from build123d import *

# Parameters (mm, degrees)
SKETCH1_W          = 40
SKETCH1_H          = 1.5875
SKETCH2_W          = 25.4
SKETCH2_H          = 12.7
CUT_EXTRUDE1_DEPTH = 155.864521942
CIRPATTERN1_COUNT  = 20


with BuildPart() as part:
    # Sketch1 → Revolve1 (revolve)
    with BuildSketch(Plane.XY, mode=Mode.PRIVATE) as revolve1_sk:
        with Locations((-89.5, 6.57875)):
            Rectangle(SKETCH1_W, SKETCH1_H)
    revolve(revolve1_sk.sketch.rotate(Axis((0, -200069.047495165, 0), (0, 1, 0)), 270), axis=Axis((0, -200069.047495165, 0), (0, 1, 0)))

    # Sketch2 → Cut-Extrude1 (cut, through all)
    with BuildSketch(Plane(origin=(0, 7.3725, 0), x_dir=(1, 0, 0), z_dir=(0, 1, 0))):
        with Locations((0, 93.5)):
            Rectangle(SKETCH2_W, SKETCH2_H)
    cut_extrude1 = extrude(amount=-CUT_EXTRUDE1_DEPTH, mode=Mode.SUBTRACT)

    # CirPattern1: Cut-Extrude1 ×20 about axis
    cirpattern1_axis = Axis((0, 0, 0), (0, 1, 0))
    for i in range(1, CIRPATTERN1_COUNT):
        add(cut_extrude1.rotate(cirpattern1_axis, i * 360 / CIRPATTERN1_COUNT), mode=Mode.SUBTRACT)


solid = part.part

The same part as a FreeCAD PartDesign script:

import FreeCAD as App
import Part
import Sketcher

V = App.Vector
Q = App.Units.Quantity


def add_polygon(sketch, points):
    """Adds a closed chain of lines whose ends are joined by coincident constraints."""
    first, n = sketch.GeometryCount, len(points)
    for a, b in zip(points, points[1:] + points[:1]):
        sketch.addGeometry(Part.LineSegment(App.Vector(*a, 0), App.Vector(*b, 0)), False)
    for i in range(n):
        sketch.addConstraint(Sketcher.Constraint("Coincident", first + i, 2, first + (i + 1) % n, 1))

doc = App.newDocument("Part")
params = doc.addObject("Spreadsheet::Sheet", "Params")
for row, (alias, value) in enumerate([
    ("sketch1_height", "0.0625 in"),
    ("revolution_angle", "360 deg"),
    ("sketch2_width", "1 in"),
    ("sketch2_height", "0.5 in"),
], start=1):
    params.set(f"A{row}", alias)
    params.set(f"B{row}", "=" + value)
    params.setAlias(f"B{row}", alias)

body = doc.addObject("PartDesign::Body", "Body")

# Sketch on XY plane
sketch1 = body.newObject("Sketcher::SketchObject", "Sketch")
sketch1.AttachmentSupport = (doc.getObject("XY_Plane"), [""])
sketch1.MapMode = "FlatFace"
add_polygon(sketch1, [(-109.5, 7.4), (-109.5, 5.8), (-69.5, 5.8), (-69.5, 7.4)])  # lines 0-3
sketch1.addConstraint(Sketcher.Constraint("Vertical", 0))
sketch1.addConstraint(Sketcher.Constraint("Horizontal", 1))
sketch1.addConstraint(Sketcher.Constraint("Vertical", 2))
sketch1.addConstraint(Sketcher.Constraint("Horizontal", 3))
sketch1.addConstraint(Sketcher.Constraint("DistanceY", 0, 2, 0, 1, Q("0.0625 in")))
sketch1.addConstraint(Sketcher.Constraint("DistanceX", 1, 1, 1, 2, 40.0))
sketch1.addConstraint(Sketcher.Constraint("DistanceX", 0, 2, -1, 1, 109.5))
sketch1.addConstraint(Sketcher.Constraint("DistanceY", -1, 1, 0, 2, 5.785))
sketch1.setExpression("Constraints[8]", "Params.sketch1_height")
revolution = body.newObject("PartDesign::Revolution", "Revolution")
revolution.Profile = sketch1
revolution.ReferenceAxis = (sketch1, ["V_Axis"])
revolution.setExpression("Angle", "Params.revolution_angle")

# Sketch on XZ plane
sketch2 = body.newObject("Sketcher::SketchObject", "Sketch001")
sketch2.AttachmentSupport = (doc.getObject("XZ_Plane"), [""])
sketch2.MapMode = "FlatFace"
sketch2.AttachmentOffset = App.Placement(V(0, 0, -7.3725), App.Rotation())
add_polygon(sketch2, [(-13, -100), (-13, -87), (13, -87), (13, -100)])  # lines 0-3
sketch2.addConstraint(Sketcher.Constraint("Vertical", 0))
sketch2.addConstraint(Sketcher.Constraint("Horizontal", 1))
sketch2.addConstraint(Sketcher.Constraint("Vertical", 2))
sketch2.addConstraint(Sketcher.Constraint("Horizontal", 3))
sketch2.addConstraint(Sketcher.Constraint("DistanceX", 1, 1, 1, 2, Q("1 in")))
sketch2.addConstraint(Sketcher.Constraint("DistanceY", 0, 1, 0, 2, Q("0.5 in")))
sketch2.addConstraint(Sketcher.Constraint("DistanceX", 0, 2, -1, 1, Q("0.5 in")))
sketch2.addConstraint(Sketcher.Constraint("DistanceY", 0, 2, -1, 1, 87.15))
sketch2.setExpression("Constraints[8]", "Params.sketch2_width")
sketch2.setExpression("Constraints[9]", "Params.sketch2_height")
pocket1 = body.newObject("PartDesign::Pocket", "Pocket")
pocket1.Profile = sketch2
pocket1.Type = "ThroughAll"
pocket1.Reversed = True
doc.recompute()

polarpattern = body.newObject("PartDesign::PolarPattern", "PolarPattern")
polarpattern.Originals = [pocket1]
polarpattern.Axis = (doc.getObject("Y_Axis"), [""])
polarpattern.Angle = 360
polarpattern.Occurrences = 20
body.Tip = polarpattern

doc.recompute()
